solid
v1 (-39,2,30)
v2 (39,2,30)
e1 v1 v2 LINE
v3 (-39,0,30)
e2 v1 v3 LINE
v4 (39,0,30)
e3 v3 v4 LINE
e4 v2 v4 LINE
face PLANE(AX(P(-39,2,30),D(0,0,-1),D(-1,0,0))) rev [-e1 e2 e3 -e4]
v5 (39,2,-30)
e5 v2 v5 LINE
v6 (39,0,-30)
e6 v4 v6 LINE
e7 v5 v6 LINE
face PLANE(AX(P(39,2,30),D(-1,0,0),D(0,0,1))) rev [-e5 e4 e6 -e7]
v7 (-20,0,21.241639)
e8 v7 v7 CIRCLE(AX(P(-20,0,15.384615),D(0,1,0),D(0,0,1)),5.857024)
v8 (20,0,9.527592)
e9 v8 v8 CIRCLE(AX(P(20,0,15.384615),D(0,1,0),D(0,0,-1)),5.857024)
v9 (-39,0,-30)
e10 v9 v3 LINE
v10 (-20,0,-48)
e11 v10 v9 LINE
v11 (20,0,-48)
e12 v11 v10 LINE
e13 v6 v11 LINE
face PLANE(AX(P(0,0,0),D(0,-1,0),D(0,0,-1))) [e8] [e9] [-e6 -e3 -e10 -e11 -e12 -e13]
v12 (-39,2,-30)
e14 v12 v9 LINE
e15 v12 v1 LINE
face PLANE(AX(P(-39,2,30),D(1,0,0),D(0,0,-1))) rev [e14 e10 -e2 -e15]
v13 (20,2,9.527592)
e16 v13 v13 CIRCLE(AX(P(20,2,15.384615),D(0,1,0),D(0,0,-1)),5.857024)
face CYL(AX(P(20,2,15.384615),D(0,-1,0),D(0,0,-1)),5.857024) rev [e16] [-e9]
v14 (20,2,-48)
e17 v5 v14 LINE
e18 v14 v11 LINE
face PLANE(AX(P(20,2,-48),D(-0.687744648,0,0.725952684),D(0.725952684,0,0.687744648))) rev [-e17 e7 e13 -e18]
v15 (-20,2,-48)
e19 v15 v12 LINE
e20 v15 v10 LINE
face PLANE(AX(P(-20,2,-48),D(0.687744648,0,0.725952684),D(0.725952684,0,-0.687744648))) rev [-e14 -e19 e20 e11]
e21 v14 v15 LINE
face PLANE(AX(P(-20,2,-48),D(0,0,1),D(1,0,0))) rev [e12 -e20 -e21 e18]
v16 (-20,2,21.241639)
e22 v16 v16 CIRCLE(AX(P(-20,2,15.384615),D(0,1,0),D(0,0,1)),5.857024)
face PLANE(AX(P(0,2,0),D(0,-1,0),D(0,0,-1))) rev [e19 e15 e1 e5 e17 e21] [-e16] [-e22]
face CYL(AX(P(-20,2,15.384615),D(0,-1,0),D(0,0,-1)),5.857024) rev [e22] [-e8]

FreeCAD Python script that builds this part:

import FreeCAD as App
import Part
import Sketcher
from FreeCAD import Vector


def add_polygon(sketch, points):
    """Adds a closed chain of lines whose ends are joined by coincident constraints."""
    first, n = sketch.GeometryCount, len(points)
    for a, b in zip(points, points[1:] + points[:1]):
        sketch.addGeometry(Part.LineSegment(App.Vector(*a, 0), App.Vector(*b, 0)), False)
    for i in range(n):
        sketch.addConstraint(Sketcher.Constraint("Coincident", first + i, 2, first + (i + 1) % n, 1))

doc = App.newDocument("Part")
body = doc.addObject("PartDesign::Body", "Body")

# Sketch on XZ plane
sketch1 = body.newObject("Sketcher::SketchObject", "Sketch")
sketch1.AttachmentSupport = (doc.getObject("XZ_Plane"), [""])
sketch1.MapMode = "FlatFace"
add_polygon(sketch1, [(-20, -48), (-39, -30), (-39, 30), (39, 30), (39, -30), (20, -48)])  # lines 0-5
sketch1.addGeometry(Part.Circle(Vector(-20, 15, 0), Vector(0, 0, 1), 6), False)  # 6
sketch1.addGeometry(Part.Circle(Vector(20, 15, 0), Vector(0, 0, 1), 6), False)  # 7
sketch1.addConstraint([
    Sketcher.Constraint("Vertical", 1),
    Sketcher.Constraint("Horizontal", 2),
    Sketcher.Constraint("Vertical", 3),
    Sketcher.Constraint("Horizontal", 5),
    Sketcher.Constraint("Equal", 6, 7),
    Sketcher.Constraint("Symmetric", 0, 2, 2, 2, -1, 1),
    Sketcher.Constraint("Symmetric", 6, 3, 7, 3, -2),
    Sketcher.Constraint("Horizontal", 0, 2, 3, 2),
    Sketcher.Constraint("Vertical", 7, 3, 4, 2),
    Sketcher.Constraint("Vertical", 6, 3, 5, 2),
    Sketcher.Constraint("DistanceX", 2, 1, 2, 2, 78.0),
    Sketcher.Constraint("DistanceX", 5, 2, 5, 1, 40.0),
    Sketcher.Constraint("DistanceY", 1, 1, 1, 2, 60.0),
    Sketcher.Constraint("DistanceY", 4, 2, -1, 1, 48.0),
    Sketcher.Constraint("Diameter", 6, 11.714048),
    Sketcher.Constraint("DistanceY", -1, 1, 6, 3, 15.384615),
])
pad1 = body.newObject("PartDesign::Pad", "Pad")
pad1.Profile = sketch1
pad1.Length = 2
pad1.Reversed = True

doc.recompute()
